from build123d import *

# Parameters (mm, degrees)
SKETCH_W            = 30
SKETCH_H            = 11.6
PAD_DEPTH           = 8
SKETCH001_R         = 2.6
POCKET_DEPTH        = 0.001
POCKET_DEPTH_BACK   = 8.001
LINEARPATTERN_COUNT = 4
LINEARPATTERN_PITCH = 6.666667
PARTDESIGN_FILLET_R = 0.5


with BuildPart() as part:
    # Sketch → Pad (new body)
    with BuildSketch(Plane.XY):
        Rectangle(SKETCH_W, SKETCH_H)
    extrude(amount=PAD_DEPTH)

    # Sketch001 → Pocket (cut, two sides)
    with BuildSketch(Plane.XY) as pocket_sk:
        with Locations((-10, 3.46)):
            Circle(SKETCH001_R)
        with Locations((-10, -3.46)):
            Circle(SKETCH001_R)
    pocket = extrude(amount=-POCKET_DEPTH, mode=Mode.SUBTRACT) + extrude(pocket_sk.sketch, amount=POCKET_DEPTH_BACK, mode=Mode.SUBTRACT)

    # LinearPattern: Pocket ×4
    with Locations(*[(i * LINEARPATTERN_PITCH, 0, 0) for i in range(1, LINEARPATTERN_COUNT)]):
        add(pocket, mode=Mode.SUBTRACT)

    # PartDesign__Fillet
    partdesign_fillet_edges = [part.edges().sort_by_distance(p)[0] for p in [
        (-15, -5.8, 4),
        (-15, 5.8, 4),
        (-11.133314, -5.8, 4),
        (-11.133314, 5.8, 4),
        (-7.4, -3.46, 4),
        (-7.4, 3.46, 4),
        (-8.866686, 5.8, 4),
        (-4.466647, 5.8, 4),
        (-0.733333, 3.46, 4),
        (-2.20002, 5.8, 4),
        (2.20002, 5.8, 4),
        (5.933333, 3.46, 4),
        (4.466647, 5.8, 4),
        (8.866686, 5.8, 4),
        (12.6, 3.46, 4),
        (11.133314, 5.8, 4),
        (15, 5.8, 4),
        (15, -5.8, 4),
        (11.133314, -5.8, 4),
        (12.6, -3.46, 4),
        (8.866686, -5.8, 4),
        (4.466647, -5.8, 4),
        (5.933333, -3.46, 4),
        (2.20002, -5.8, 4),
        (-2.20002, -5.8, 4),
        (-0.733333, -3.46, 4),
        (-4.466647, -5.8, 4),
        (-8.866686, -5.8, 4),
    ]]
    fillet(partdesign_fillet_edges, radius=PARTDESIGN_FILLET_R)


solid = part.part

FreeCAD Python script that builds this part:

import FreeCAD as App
import Part
import Sketcher


def edges_at(feature, points):
    """Names of the edges that pass closest to the given points."""
    edges = feature.Shape.Edges
    near = lambda p: min(range(len(edges)), key=lambda i: edges[i].distToShape(Part.Vertex(*p))[0])
    return sorted({f"Edge{near(p) + 1}" for p in points})

doc = App.newDocument("Part")
body = doc.addObject("PartDesign::Body", "Body")

sketch1 = body.newObject("Sketcher::SketchObject", "Sketch")
sketch1.AttachmentSupport = (doc.getObject("XY_Plane"), [""])
sketch1.MapMode = "FlatFace"
sketch1.addGeometry([
    Part.LineSegment(App.Vector(-15, 5.8, 0), App.Vector(-15, -5.8, 0)),
    Part.LineSegment(App.Vector(-15, -5.8, 0), App.Vector(15, -5.8, 0)),
    Part.LineSegment(App.Vector(15, -5.8, 0), App.Vector(15, 5.8, 0)),
    Part.LineSegment(App.Vector(15, 5.8, 0), App.Vector(-15, 5.8, 0)),
], False)
sketch1.addConstraint([
    Sketcher.Constraint("Coincident", 0, 2, 1, 1),
    Sketcher.Constraint("Coincident", 1, 2, 2, 1),
    Sketcher.Constraint("Coincident", 2, 2, 3, 1),
    Sketcher.Constraint("Coincident", 3, 2, 0, 1),
    Sketcher.Constraint("Vertical", 0),
    Sketcher.Constraint("Horizontal", 1),
    Sketcher.Constraint("Vertical", 2),
    Sketcher.Constraint("Horizontal", 3),
    Sketcher.Constraint("Symmetric", 0, 2, 2, 2, -1, 1),
    Sketcher.Constraint("DistanceX", 1, 1, 1, 2, 30.0),
    Sketcher.Constraint("DistanceY", 0, 2, 0, 1, 11.6),
])
pad1 = body.newObject("PartDesign::Pad", "Pad")
pad1.Profile = sketch1
pad1.Length = 8

sketch2 = body.newObject("Sketcher::SketchObject", "Sketch001")
sketch2.AttachmentSupport = (doc.getObject("XY_Plane"), [""])
sketch2.MapMode = "FlatFace"
sketch2.addGeometry([
    Part.Circle(App.Vector(-10, 3.46, 0), App.Vector(0, 0, 1), 2.6),
    Part.Circle(App.Vector(-10, -3.46, 0), App.Vector(0, 0, 1), 2.6),
], False)
sketch2.addConstraint([
    Sketcher.Constraint("Equal", 0, 1),
    Sketcher.Constraint("Symmetric", 0, 3, 1, 3, -1),
    Sketcher.Constraint("Diameter", 0, 5.2),
    Sketcher.Constraint("DistanceX", 0, 3, -1, 1, 10.0),
    Sketcher.Constraint("DistanceY", -1, 1, 0, 3, 3.46),
])
pocket1 = body.newObject("PartDesign::Pocket", "Pocket")
pocket1.Profile = sketch2
pocket1.Type = "ThroughAll"
pocket1.Midplane = True
doc.recompute()

linearpattern = body.newObject("PartDesign::LinearPattern", "LinearPattern")
linearpattern.Originals = [pocket1]
linearpattern.Direction = (doc.getObject("X_Axis"), [""])
linearpattern.Mode = "offset"
linearpattern.Offset = 6.666667
linearpattern.Occurrences = 4
body.Tip = linearpattern
doc.recompute()

fillet = body.newObject("PartDesign::Fillet", "Fillet")
fillet.Base = (linearpattern, edges_at(linearpattern, [
    (-15, -5.8, 4),
    (-15, 5.8, 4),
    (-11.133, -5.8, 4),
    (-11.133, 5.8, 4),
    (-8.867, -5.8, 4),
    (-8.867, 5.8, 4),
    (-8.867, 5.8, 4),
    (-4.467, 5.8, 4),
    (-2.2, 5.8, 4),
    (-2.2, 5.8, 4),
    (2.2, 5.8, 4),
    (4.467, 5.8, 4),
    (4.467, 5.8, 4),
    (8.867, 5.8, 4),
    (11.133, 5.8, 4),
    (11.133, 5.8, 4),
    (15, 5.8, 4),
    (15, -5.8, 4),
    (11.133, -5.8, 4),
    (11.133, -5.8, 4),
    (8.867, -5.8, 4),
    (4.467, -5.8, 4),
    (4.467, -5.8, 4),
    (2.2, -5.8, 4),
    (-2.2, -5.8, 4),
    (-2.2, -5.8, 4),
    (-4.467, -5.8, 4),
    (-8.867, -5.8, 4),
]))
fillet.Radius = 0.5

doc.recompute()
